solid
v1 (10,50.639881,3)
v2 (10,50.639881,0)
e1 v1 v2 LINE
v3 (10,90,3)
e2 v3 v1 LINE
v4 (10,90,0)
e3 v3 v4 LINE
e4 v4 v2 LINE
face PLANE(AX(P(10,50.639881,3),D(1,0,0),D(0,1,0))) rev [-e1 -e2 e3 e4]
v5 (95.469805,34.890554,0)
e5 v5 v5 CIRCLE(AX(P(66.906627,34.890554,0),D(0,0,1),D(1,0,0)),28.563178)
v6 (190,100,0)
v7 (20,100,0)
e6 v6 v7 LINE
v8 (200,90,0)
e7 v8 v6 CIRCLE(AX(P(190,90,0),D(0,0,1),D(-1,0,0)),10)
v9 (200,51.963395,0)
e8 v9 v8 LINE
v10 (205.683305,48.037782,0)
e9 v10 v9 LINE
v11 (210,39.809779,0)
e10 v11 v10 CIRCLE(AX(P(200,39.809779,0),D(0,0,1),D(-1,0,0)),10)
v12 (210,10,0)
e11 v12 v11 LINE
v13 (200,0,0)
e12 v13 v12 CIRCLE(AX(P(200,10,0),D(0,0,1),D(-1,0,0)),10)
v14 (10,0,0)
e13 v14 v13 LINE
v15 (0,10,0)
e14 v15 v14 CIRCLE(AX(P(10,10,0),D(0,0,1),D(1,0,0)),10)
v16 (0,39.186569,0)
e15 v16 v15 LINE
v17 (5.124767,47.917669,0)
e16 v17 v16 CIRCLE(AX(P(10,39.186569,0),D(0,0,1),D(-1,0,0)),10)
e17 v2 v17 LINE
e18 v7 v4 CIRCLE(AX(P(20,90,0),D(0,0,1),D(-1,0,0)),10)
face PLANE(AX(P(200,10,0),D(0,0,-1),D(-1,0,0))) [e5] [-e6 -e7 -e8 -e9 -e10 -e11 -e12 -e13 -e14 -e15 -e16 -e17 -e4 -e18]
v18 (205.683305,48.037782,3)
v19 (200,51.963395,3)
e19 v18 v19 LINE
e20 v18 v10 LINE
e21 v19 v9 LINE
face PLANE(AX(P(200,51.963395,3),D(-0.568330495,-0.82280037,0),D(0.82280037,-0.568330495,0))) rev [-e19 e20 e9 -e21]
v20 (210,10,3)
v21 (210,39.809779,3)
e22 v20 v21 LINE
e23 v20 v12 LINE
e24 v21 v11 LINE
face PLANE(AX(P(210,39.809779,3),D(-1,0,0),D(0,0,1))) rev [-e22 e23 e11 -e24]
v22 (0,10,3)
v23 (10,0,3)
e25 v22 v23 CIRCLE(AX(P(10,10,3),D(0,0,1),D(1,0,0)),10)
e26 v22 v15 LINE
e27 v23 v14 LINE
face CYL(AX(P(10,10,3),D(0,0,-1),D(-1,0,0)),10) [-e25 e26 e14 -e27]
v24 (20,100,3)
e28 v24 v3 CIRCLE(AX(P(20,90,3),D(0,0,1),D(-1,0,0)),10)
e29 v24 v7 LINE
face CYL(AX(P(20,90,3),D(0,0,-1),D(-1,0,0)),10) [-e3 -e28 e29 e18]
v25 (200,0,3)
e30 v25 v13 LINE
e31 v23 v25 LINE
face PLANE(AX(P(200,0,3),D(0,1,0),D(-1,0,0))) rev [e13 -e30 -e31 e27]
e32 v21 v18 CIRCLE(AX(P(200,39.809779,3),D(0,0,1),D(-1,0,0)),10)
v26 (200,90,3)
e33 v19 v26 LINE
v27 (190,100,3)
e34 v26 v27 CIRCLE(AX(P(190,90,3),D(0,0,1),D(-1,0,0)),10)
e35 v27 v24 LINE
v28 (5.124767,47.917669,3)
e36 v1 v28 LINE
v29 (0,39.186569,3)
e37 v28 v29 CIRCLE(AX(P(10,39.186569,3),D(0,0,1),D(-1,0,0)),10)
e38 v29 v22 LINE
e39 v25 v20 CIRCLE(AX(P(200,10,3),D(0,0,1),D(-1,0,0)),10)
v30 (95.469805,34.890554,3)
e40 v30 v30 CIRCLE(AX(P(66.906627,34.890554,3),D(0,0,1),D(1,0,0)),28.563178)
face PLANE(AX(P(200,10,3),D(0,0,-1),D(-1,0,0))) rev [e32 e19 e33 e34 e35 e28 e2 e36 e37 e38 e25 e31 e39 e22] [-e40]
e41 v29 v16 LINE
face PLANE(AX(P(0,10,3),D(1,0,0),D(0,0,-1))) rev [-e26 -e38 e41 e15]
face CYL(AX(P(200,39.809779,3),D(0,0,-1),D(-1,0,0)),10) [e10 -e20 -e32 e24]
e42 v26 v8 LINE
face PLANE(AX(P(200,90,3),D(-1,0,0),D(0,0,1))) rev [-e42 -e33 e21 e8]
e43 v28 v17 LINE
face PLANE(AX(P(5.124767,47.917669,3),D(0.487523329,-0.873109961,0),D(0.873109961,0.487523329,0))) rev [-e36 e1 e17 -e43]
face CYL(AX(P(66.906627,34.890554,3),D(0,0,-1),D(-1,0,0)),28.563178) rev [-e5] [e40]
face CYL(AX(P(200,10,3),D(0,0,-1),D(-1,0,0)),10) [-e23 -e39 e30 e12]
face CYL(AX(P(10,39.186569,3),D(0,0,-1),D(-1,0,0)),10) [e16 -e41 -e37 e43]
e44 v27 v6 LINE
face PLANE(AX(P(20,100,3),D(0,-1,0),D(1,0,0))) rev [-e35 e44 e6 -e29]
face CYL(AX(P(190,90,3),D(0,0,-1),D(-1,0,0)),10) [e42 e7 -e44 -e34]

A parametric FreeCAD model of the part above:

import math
import FreeCAD as App
import Part
import Sketcher

doc = App.newDocument("Part")
body = doc.addObject("PartDesign::Body", "Body")

sketch1 = doc.addObject("Sketcher::SketchObject", "Sketch")
body.addObject(sketch1)
sketch1.AttachmentSupport = (doc.XY_Plane, [""])
sketch1.MapMode = "FlatFace"
sketch1.addGeometry(Part.LineSegment(App.Vector(0, 39.186569, 0), App.Vector(0, 10, 0)), False)
sketch1.addGeometry(Part.ArcOfCircle(Part.Circle(App.Vector(10, 10, 0), App.Vector(0, 0, 1), 10), math.radians(180), math.radians(270)), False)
sketch1.addGeometry(Part.LineSegment(App.Vector(10, 0, 0), App.Vector(200, 0, 0)), False)
sketch1.addGeometry(Part.ArcOfCircle(Part.Circle(App.Vector(200, 10, 0), App.Vector(0, 0, 1), 10), math.radians(-90), math.radians(0)), False)
sketch1.addGeometry(Part.LineSegment(App.Vector(210, 10, 0), App.Vector(210, 39.809779, 0)), False)
sketch1.addGeometry(Part.ArcOfCircle(Part.Circle(App.Vector(200, 39.809779, 0), App.Vector(0, 0, 1), 10), math.radians(0), math.radians(55.366112)), False)
sketch1.addGeometry(Part.LineSegment(App.Vector(205.683305, 48.037782, 0), App.Vector(200, 51.963395, 0)), False)
sketch1.addGeometry(Part.LineSegment(App.Vector(200, 51.963395, 0), App.Vector(200, 90, 0)), False)
sketch1.addGeometry(Part.ArcOfCircle(Part.Circle(App.Vector(190, 90, 0), App.Vector(0, 0, 1), 10), math.radians(0), math.radians(90)), False)
sketch1.addGeometry(Part.LineSegment(App.Vector(190, 100, 0), App.Vector(20, 100, 0)), False)
sketch1.addGeometry(Part.ArcOfCircle(Part.Circle(App.Vector(20, 90, 0), App.Vector(0, 0, 1), 10), math.radians(90), math.radians(180)), False)
sketch1.addGeometry(Part.LineSegment(App.Vector(10, 90, 0), App.Vector(10, 50.639881, 0)), False)
sketch1.addGeometry(Part.LineSegment(App.Vector(10, 50.639881, 0), App.Vector(5.124767, 47.917669, 0)), False)
sketch1.addGeometry(Part.ArcOfCircle(Part.Circle(App.Vector(10, 39.186569, 0), App.Vector(0, 0, 1), 10), math.radians(119.177927), math.radians(180)), False)
sketch1.addGeometry(Part.Circle(App.Vector(66.906627, 34.890554, 0), App.Vector(0, 0, 1), 28.563178), False)
sketch1.addConstraint(Sketcher.Constraint("Tangent", 0, 2, 1, 1))
sketch1.addConstraint(Sketcher.Constraint("Tangent", 1, 2, 2, 1))
sketch1.addConstraint(Sketcher.Constraint("Tangent", 2, 2, 3, 1))
sketch1.addConstraint(Sketcher.Constraint("Tangent", 3, 2, 4, 1))
sketch1.addConstraint(Sketcher.Constraint("Tangent", 4, 2, 5, 1))
sketch1.addConstraint(Sketcher.Constraint("Tangent", 5, 2, 6, 1))
sketch1.addConstraint(Sketcher.Constraint("Coincident", 6, 2, 7, 1))
sketch1.addConstraint(Sketcher.Constraint("Tangent", 7, 2, 8, 1))
sketch1.addConstraint(Sketcher.Constraint("Tangent", 8, 2, 9, 1))
sketch1.addConstraint(Sketcher.Constraint("Tangent", 9, 2, 10, 1))
sketch1.addConstraint(Sketcher.Constraint("Tangent", 10, 2, 11, 1))
sketch1.addConstraint(Sketcher.Constraint("Coincident", 11, 2, 12, 1))
sketch1.addConstraint(Sketcher.Constraint("Tangent", 12, 2, 13, 1))
sketch1.addConstraint(Sketcher.Constraint("Tangent", 13, 2, 0, 1))
sketch1.addConstraint(Sketcher.Constraint("Vertical", 0))
sketch1.addConstraint(Sketcher.Constraint("Horizontal", 2))
sketch1.addConstraint(Sketcher.Constraint("Vertical", 4))
sketch1.addConstraint(Sketcher.Constraint("Vertical", 7))
sketch1.addConstraint(Sketcher.Constraint("Horizontal", 9))
sketch1.addConstraint(Sketcher.Constraint("Vertical", 11))
sketch1.addConstraint(Sketcher.Constraint("Equal", 1, 3))
sketch1.addConstraint(Sketcher.Constraint("Equal", 3, 5))
sketch1.addConstraint(Sketcher.Constraint("Equal", 5, 8))
sketch1.addConstraint(Sketcher.Constraint("Equal", 8, 10))
sketch1.addConstraint(Sketcher.Constraint("Equal", 10, 13))
sketch1.addConstraint(Sketcher.Constraint("PointOnObject", 0, 2, -2))
sketch1.addConstraint(Sketcher.Constraint("PointOnObject", 1, 2, -1))
sketch1.addConstraint(Sketcher.Constraint("Vertical", 2, 2, 6, 2))
sketch1.addConstraint(Sketcher.Constraint("Vertical", 1, 2, 10, 2))
sketch1.addConstraint(Sketcher.Constraint("Radius", 1, 10.0))
sketch1.addConstraint(Sketcher.Constraint("DistanceX", 2, 1, 2, 2, 190.0))
sketch1.addConstraint(Sketcher.Constraint("DistanceY", -1, 1, 8, 3, 90.0))
sketch1.addConstraint(Sketcher.Constraint("Diameter", 14, 57.126356))
sketch1.addConstraint(Sketcher.Constraint("DistanceY", 0, 2, 0, 1, 29.186569))
sketch1.addConstraint(Sketcher.Constraint("DistanceY", 4, 1, 4, 2, 29.809779))
sketch1.addConstraint(Sketcher.Constraint("DistanceY", 11, 2, 11, 1, 39.360119))
sketch1.addConstraint(Sketcher.Constraint("Distance", 6, 6.907271))
sketch1.addConstraint(Sketcher.Constraint("DistanceX", -1, 1, 14, 3, 66.906627))
sketch1.addConstraint(Sketcher.Constraint("DistanceY", -1, 1, 14, 3, 34.890554))
pad1 = doc.addObject("PartDesign::Pad", "Pad")
body.addObject(pad1)
pad1.Profile = sketch1
pad1.Length = 3

doc.recompute()
